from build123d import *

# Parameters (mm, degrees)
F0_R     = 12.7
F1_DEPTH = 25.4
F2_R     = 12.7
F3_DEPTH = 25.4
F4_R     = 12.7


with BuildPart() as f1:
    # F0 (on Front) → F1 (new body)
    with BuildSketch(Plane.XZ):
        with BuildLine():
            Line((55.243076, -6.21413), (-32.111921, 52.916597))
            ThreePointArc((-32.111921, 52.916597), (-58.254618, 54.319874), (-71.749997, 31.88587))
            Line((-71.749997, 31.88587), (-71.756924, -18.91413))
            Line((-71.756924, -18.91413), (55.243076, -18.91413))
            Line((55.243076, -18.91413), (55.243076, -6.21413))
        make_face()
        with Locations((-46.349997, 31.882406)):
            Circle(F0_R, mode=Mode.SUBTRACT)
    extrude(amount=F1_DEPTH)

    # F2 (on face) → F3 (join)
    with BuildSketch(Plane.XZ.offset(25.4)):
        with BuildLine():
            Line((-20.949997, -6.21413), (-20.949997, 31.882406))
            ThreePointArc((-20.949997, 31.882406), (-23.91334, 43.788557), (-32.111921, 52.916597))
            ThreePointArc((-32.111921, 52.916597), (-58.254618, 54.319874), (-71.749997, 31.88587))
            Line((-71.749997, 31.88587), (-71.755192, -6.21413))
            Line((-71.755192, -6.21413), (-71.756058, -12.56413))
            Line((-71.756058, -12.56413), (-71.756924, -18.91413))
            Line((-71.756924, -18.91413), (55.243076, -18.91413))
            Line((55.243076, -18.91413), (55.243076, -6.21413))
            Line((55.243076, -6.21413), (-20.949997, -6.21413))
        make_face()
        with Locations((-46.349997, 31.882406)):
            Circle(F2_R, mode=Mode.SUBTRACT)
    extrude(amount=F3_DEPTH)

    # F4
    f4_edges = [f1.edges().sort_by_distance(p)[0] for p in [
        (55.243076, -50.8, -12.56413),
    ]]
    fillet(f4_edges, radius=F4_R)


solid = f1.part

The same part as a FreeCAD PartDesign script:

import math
import FreeCAD as App
import Part
import Sketcher
from FreeCAD import Vector
Q = App.Units.Quantity


def edges_at(feature, points):
    """Names of the edges that pass closest to the given points."""
    edges = feature.Shape.Edges
    near = lambda p: min(range(len(edges)), key=lambda i: edges[i].distToShape(Part.Vertex(*p))[0])
    return sorted({f"Edge{near(p) + 1}" for p in points})

doc = App.newDocument("Part")
params = doc.addObject("Spreadsheet::Sheet", "Params")
for row, (alias, value) in enumerate([
    ("sketch1_diameter", "1 in"),
    ("sketch1_radius", "1 in"),
    ("sketch1_width", "5 in"),
    ("sketch1_length", "2 in"),
    ("sketch1_height", "0.5 in"),
    ("pad1_length", "1 in"),
    ("sketch2_diameter", "1 in"),
    ("sketch2_radius", "0.9999999 in"),
    ("sketch2_radius2", "1 in"),
    ("sketch2_width", "5 in"),
    ("sketch2_height", "0.5 in"),
    ("pad2_length", "1 in"),
    ("fillet_radius", "0.5 in"),
], start=1):
    params.set(f"A{row}", alias)
    params.set(f"B{row}", "=" + value)
    params.setAlias(f"B{row}", alias)

body = doc.addObject("PartDesign::Body", "Body")

sketch1 = body.newObject("Sketcher::SketchObject", "Sketch")
sketch1.AttachmentSupport = (doc.getObject("XZ_Plane"), [""])
sketch1.MapMode = "FlatFace"
sketch1.addGeometry([
    Part.LineSegment(Vector(55, -6, 0), Vector(-32, 53, 0)),
    Part.ArcOfCircle(Part.Circle(Vector(-46, 32, 0), Vector(0, 0, 1), 25), math.radians(56), math.radians(180)),
    Part.LineSegment(Vector(-72, 32, 0), Vector(-72, -19, 0)),
    Part.LineSegment(Vector(-72, -19, 0), Vector(55, -19, 0)),
    Part.LineSegment(Vector(55, -19, 0), Vector(55, -6, 0)),
    Part.Circle(Vector(-46, 32, 0), Vector(0, 0, 1), 13),
], False)
sketch1.addConstraint([
    Sketcher.Constraint("Tangent", 0, 2, 1, 1),
    Sketcher.Constraint("Tangent", 1, 2, 2, 1),
    Sketcher.Constraint("Coincident", 2, 2, 3, 1),
    Sketcher.Constraint("Coincident", 3, 2, 4, 1),
    Sketcher.Constraint("Coincident", 4, 2, 0, 1),
    Sketcher.Constraint("Horizontal", 3),
    Sketcher.Constraint("Vertical", 4),
    Sketcher.Constraint("Coincident", 5, 3, 1, 3),
    Sketcher.Constraint("Diameter", 5, Q("1 in")),
    Sketcher.Constraint("Radius", 1, Q("1 in")),
    Sketcher.Constraint("DistanceX", 3, 1, 3, 2, Q("5 in")),
    Sketcher.Constraint("Distance", 2, Q("2 in")),
    Sketcher.Constraint("DistanceY", 4, 1, 4, 2, Q("0.5 in")),
    Sketcher.Constraint("Distance", 0, Q("4.153 in")),
    Sketcher.Constraint("DistanceX", 0, 2, -1, 1, 32.111921),
    Sketcher.Constraint("DistanceY", -1, 1, 1, 2, 31.88587),
])
sketch1.setExpression("Constraints[8]", "Params.sketch1_diameter")
sketch1.setExpression("Constraints[9]", "Params.sketch1_radius")
sketch1.setExpression("Constraints[10]", "Params.sketch1_width")
sketch1.setExpression("Constraints[11]", "Params.sketch1_length")
sketch1.setExpression("Constraints[12]", "Params.sketch1_height")
pad1 = body.newObject("PartDesign::Pad", "Pad")
pad1.Profile = sketch1
pad1.setExpression("Length", "Params.pad1_length")

sketch2 = body.newObject("Sketcher::SketchObject", "Sketch001")
sketch2.AttachmentSupport = (doc.getObject("XZ_Plane"), [""])
sketch2.MapMode = "FlatFace"
sketch2.AttachmentOffset = App.Placement(Vector(0, 0, 1 * 25.4), App.Rotation())
sketch2.addGeometry([
    Part.LineSegment(Vector(-21, -6, 0), Vector(-21, 32, 0)),
    Part.ArcOfCircle(Part.Circle(Vector(-46, 32, 0), Vector(0, 0, 1), 25), math.radians(0), math.radians(56)),
    Part.ArcOfCircle(Part.Circle(Vector(-46, 32, 0), Vector(0, 0, 1), 25), math.radians(56), math.radians(180)),
    Part.LineSegment(Vector(-72, 32, 0), Vector(-72, -6, 0)),
    Part.LineSegment(Vector(-72, -6, 0), Vector(-72, -19, 0)),
    Part.LineSegment(Vector(-72, -19, 0), Vector(55, -19, 0)),
    Part.LineSegment(Vector(55, -19, 0), Vector(55, -6, 0)),
    Part.LineSegment(Vector(55, -6, 0), Vector(-21, -6, 0)),
    Part.Circle(Vector(-46, 32, 0), Vector(0, 0, 1), 13),
], False)
sketch2.addConstraint([
    Sketcher.Constraint("Tangent", 0, 2, 1, 1),
    Sketcher.Constraint("Tangent", 1, 2, 2, 1),
    Sketcher.Constraint("Tangent", 2, 2, 3, 1),
    Sketcher.Constraint("Coincident", 3, 2, 4, 1),
    Sketcher.Constraint("Coincident", 4, 2, 5, 1),
    Sketcher.Constraint("Coincident", 5, 2, 6, 1),
    Sketcher.Constraint("Coincident", 6, 2, 7, 1),
    Sketcher.Constraint("Coincident", 7, 2, 0, 1),
    Sketcher.Constraint("Vertical", 0),
    Sketcher.Constraint("Horizontal", 5),
    Sketcher.Constraint("Vertical", 6),
    Sketcher.Constraint("Horizontal", 7),
    Sketcher.Constraint("Coincident", 8, 3, 1, 3),
    Sketcher.Constraint("Parallel", 3, 4),
    Sketcher.Constraint("Horizontal", 3, 2, 6, 2),
    Sketcher.Constraint("Diameter", 8, Q("1 in")),
    Sketcher.Constraint("Radius", 1, Q("0.9999999 in")),
    Sketcher.Constraint("Radius", 2, Q("1 in")),
    Sketcher.Constraint("DistanceX", 5, 1, 5, 2, Q("5 in")),
    Sketcher.Constraint("DistanceY", 6, 1, 6, 2, Q("0.5 in")),
    Sketcher.Constraint("DistanceY", 4, 2, 2, 2, Q("2 in")),
    Sketcher.Constraint("DistanceX", 7, 2, 7, 1, 76.193073),
    Sketcher.Constraint("DistanceX", 1, 2, -1, 1, 32.111921),
    Sketcher.Constraint("DistanceY", -1, 1, 2, 2, 31.88587),
    Sketcher.Constraint("DistanceX", 3, 2, -1, 1, 71.755192),
])
sketch2.setExpression("Constraints[15]", "Params.sketch2_diameter")
sketch2.setExpression("Constraints[16]", "Params.sketch2_radius")
sketch2.setExpression("Constraints[17]", "Params.sketch2_radius2")
sketch2.setExpression("Constraints[18]", "Params.sketch2_width")
sketch2.setExpression("Constraints[19]", "Params.sketch2_height")
pad2 = body.newObject("PartDesign::Pad", "Pad001")
pad2.Profile = sketch2
pad2.setExpression("Length", "Params.pad2_length")
doc.recompute()

fillet = body.newObject("PartDesign::Fillet", "Fillet")
fillet.Base = (pad2, edges_at(pad2, [(55.243, -50.8, -12.564)]))
fillet.setExpression("Radius", "Params.fillet_radius")

doc.recompute()
